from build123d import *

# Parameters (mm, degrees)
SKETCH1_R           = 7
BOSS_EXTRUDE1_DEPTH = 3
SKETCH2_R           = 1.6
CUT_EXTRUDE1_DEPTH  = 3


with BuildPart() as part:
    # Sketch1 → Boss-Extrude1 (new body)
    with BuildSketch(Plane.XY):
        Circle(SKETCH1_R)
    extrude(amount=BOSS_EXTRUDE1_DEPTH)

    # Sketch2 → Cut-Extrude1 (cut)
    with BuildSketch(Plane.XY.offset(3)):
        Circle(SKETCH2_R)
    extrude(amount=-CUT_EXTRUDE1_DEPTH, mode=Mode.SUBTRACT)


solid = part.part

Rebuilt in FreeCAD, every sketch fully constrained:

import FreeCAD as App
import Part
import Sketcher

V = App.Vector
Q = App.Units.Quantity

doc = App.newDocument("Part")
body = doc.addObject("PartDesign::Body", "Body")

# Sketch on XY plane
sketch1 = body.newObject("Sketcher::SketchObject", "Sketch")
sketch1.AttachmentSupport = (doc.getObject("XY_Plane"), [""])
sketch1.MapMode = "FlatFace"
sketch1.addGeometry(Part.Circle(V(0, 0, 0), V(0, 0, 1), 7), False)
sketch1.addConstraint([
    Sketcher.Constraint("Coincident", 0, 3, -1, 1),
    Sketcher.Constraint("Diameter", 0, Q("14 mm")),
])
pad1 = body.newObject("PartDesign::Pad", "Pad")
pad1.Profile = sketch1
pad1.Length = 3

# Sketch on XY plane
sketch2 = body.newObject("Sketcher::SketchObject", "Sketch001")
sketch2.AttachmentSupport = (doc.getObject("XY_Plane"), [""])
sketch2.MapMode = "FlatFace"
sketch2.AttachmentOffset = App.Placement(V(0, 0, 3), App.Rotation())
sketch2.addGeometry(Part.Circle(V(0, 0, 0), V(0, 0, 1), 1.6), False)
sketch2.addConstraint([
    Sketcher.Constraint("Coincident", 0, 3, -1, 1),
    Sketcher.Constraint("Diameter", 0, Q("3.2 mm")),
])
pocket1 = body.newObject("PartDesign::Pocket", "Pocket")
pocket1.Profile = sketch2
pocket1.Length = 3

doc.recompute()
